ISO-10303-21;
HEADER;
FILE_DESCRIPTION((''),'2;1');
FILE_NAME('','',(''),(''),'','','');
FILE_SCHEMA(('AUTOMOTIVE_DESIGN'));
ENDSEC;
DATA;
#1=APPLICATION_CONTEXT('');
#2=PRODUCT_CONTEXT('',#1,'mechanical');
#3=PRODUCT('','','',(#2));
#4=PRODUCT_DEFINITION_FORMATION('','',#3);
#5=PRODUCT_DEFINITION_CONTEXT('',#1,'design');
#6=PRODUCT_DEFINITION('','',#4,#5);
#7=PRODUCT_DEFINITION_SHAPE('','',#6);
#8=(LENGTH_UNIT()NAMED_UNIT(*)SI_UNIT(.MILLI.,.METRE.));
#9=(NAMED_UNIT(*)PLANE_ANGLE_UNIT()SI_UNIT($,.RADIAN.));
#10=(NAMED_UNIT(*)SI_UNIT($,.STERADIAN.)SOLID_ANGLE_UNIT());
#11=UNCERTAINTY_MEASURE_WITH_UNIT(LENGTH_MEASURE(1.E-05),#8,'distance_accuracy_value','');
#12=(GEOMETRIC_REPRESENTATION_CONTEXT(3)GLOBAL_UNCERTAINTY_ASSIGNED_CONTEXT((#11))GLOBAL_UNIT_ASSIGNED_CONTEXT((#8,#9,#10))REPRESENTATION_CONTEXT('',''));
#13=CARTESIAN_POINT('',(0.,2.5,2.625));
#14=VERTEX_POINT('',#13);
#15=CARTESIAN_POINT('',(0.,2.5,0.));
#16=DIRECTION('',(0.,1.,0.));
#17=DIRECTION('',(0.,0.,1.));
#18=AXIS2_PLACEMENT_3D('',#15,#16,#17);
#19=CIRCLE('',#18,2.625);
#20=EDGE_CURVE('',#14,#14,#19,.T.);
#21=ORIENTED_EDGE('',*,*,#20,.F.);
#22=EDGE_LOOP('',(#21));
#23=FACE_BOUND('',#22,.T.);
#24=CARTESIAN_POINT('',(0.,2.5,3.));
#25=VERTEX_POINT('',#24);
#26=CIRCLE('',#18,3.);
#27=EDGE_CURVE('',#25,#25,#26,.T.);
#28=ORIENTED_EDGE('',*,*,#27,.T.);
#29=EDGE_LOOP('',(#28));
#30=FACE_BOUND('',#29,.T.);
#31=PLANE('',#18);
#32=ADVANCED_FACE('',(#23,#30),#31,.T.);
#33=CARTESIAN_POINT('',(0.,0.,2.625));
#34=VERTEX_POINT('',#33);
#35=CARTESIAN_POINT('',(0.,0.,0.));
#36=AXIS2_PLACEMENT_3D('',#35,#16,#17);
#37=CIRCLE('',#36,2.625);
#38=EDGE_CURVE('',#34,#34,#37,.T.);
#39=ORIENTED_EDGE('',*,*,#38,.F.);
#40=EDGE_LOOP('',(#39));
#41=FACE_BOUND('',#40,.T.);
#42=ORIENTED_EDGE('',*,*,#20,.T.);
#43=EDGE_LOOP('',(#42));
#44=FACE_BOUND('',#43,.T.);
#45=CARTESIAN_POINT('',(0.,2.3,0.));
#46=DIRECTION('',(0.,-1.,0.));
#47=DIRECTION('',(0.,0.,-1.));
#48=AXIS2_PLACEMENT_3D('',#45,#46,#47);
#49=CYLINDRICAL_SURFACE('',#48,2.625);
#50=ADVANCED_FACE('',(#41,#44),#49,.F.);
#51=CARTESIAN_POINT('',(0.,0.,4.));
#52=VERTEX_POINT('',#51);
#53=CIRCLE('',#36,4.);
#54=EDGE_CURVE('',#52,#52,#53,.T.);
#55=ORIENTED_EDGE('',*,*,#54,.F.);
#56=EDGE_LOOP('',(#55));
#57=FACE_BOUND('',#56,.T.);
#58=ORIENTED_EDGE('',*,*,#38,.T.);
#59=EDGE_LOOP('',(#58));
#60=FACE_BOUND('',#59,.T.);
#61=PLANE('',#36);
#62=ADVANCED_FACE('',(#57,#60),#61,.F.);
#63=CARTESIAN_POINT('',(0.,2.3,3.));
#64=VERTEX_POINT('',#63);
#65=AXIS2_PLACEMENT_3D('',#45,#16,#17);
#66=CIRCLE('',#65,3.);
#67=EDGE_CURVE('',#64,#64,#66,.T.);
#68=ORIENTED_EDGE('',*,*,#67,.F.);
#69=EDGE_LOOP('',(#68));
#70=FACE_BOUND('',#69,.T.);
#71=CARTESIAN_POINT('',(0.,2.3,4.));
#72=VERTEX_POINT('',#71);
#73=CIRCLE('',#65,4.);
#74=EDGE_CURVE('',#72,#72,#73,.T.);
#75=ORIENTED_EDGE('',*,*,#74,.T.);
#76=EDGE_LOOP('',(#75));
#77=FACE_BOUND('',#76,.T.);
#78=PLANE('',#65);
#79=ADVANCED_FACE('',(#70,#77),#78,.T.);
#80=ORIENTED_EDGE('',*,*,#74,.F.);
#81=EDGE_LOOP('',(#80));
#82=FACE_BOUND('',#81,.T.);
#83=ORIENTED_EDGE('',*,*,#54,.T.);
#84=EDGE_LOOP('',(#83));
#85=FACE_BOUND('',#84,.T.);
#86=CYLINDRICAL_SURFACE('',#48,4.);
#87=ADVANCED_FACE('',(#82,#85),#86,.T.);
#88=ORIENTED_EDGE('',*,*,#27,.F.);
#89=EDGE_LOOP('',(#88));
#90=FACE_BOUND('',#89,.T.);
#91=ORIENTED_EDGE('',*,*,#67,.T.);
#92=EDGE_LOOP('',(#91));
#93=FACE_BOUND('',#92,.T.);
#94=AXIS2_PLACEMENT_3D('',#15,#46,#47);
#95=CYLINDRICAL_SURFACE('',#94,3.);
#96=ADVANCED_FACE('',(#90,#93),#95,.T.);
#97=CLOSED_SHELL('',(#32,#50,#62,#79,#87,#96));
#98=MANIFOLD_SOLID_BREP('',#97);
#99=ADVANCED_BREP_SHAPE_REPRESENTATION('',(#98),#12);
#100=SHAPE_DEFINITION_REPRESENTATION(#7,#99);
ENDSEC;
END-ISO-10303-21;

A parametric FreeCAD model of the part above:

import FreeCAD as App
import Part
import Sketcher

V = App.Vector

doc = App.newDocument("Part")
params = doc.addObject("Spreadsheet::Sheet", "Params")
for row, (alias, value) in enumerate([
    ("sketch1_diameter", "8 mm"),
    ("sketch1_diameter2", "5.25 mm"),
    ("pad1_length", "2.3 mm"),
    ("sketch2_diameter", "6 mm"),
    ("sketch2_diameter2", "5.25 mm"),
    ("pad2_length", "0.2 mm"),
], start=1):
    params.set(f"A{row}", alias)
    params.set(f"B{row}", "=" + value)
    params.setAlias(f"B{row}", alias)

body = doc.addObject("PartDesign::Body", "Body")

# Sketch on XZ plane
sketch1 = doc.addObject("Sketcher::SketchObject", "Sketch")
body.addObject(sketch1)
sketch1.AttachmentSupport = (doc.XZ_Plane, [""])
sketch1.MapMode = "FlatFace"
sketch1.addGeometry(Part.Circle(V(0, 0, 0), V(0, 0, 1), 4), False)
sketch1.addGeometry(Part.Circle(V(0, 0, 0), V(0, 0, 1), 2.625), False)
sketch1.addConstraint(Sketcher.Constraint("Coincident", 0, 3, -1, 1))
sketch1.addConstraint(Sketcher.Constraint("Coincident", 1, 3, -1, 1))
sketch1.addConstraint(Sketcher.Constraint("Diameter", 0, 8.0))
sketch1.addConstraint(Sketcher.Constraint("Diameter", 1, 5.25))
sketch1.setExpression("Constraints[2]", "Params.sketch1_diameter")
sketch1.setExpression("Constraints[3]", "Params.sketch1_diameter2")
pad1 = doc.addObject("PartDesign::Pad", "Pad")
body.addObject(pad1)
pad1.Profile = sketch1
pad1.setExpression("Length", "Params.pad1_length")
pad1.Reversed = True

# Sketch on XZ plane
sketch2 = doc.addObject("Sketcher::SketchObject", "Sketch001")
body.addObject(sketch2)
sketch2.AttachmentSupport = (doc.XZ_Plane, [""])
sketch2.MapMode = "FlatFace"
sketch2.AttachmentOffset = App.Placement(V(0, 0, -2.3), App.Rotation())
sketch2.addGeometry(Part.Circle(V(0, 0, 0), V(0, 0, 1), 3), False)
sketch2.addGeometry(Part.Circle(V(0, 0, 0), V(0, 0, 1), 2.625), False)
sketch2.addConstraint(Sketcher.Constraint("Coincident", 0, 3, -1, 1))
sketch2.addConstraint(Sketcher.Constraint("Coincident", 1, 3, -1, 1))
sketch2.addConstraint(Sketcher.Constraint("Diameter", 0, 6.0))
sketch2.addConstraint(Sketcher.Constraint("Diameter", 1, 5.25))
sketch2.setExpression("Constraints[2]", "Params.sketch2_diameter")
sketch2.setExpression("Constraints[3]", "Params.sketch2_diameter2")
pad2 = doc.addObject("PartDesign::Pad", "Pad001")
body.addObject(pad2)
pad2.Profile = sketch2
pad2.setExpression("Length", "Params.pad2_length")
pad2.Reversed = True

doc.recompute()
